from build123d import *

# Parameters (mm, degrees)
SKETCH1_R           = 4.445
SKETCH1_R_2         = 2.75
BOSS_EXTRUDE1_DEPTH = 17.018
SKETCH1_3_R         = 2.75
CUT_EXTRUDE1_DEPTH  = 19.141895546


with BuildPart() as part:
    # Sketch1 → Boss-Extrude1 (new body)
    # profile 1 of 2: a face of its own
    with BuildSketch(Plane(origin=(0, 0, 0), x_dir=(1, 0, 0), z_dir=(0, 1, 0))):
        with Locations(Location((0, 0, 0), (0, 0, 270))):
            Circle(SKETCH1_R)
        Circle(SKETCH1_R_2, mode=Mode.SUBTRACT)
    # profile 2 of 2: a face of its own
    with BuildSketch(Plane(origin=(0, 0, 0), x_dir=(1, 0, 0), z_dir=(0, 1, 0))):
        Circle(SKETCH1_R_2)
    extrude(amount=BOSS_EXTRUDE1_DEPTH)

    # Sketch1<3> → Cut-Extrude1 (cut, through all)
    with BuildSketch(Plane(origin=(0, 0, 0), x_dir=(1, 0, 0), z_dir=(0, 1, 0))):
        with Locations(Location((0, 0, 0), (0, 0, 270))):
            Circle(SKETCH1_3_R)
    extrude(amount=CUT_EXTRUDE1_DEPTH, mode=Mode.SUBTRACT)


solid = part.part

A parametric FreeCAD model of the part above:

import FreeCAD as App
import Part
import Sketcher
from FreeCAD import Vector
Q = App.Units.Quantity

doc = App.newDocument("Part")
body = doc.addObject("PartDesign::Body", "Body")

# Sketch on XZ plane
sketch1 = body.newObject("Sketcher::SketchObject", "Sketch")
sketch1.AttachmentSupport = (doc.getObject("XZ_Plane"), [""])
sketch1.MapMode = "FlatFace"
sketch1.addGeometry(Part.Circle(Vector(0, 0, 0), Vector(0, 0, 1), 4.4), False)
sketch1.addConstraint([
    Sketcher.Constraint("Coincident", 0, 3, -1, 1),
    Sketcher.Constraint("Diameter", 0, Q("0.35 in")),
])
pad1 = body.newObject("PartDesign::Pad", "Pad")
pad1.Profile = sketch1
pad1.Length = Q("0.67 in")
pad1.Reversed = True

# Sketch on XZ plane
sketch2 = body.newObject("Sketcher::SketchObject", "Sketch001")
sketch2.AttachmentSupport = (doc.getObject("XZ_Plane"), [""])
sketch2.MapMode = "FlatFace"
sketch2.addGeometry(Part.Circle(Vector(0, 0, 0), Vector(0, 0, 1), 2.8), False)
sketch2.addConstraint([
    Sketcher.Constraint("Coincident", 0, 3, -1, 1),
    Sketcher.Constraint("Diameter", 0, Q("5.5 mm")),
])
pocket1 = body.newObject("PartDesign::Pocket", "Pocket")
pocket1.Profile = sketch2
pocket1.Type = "ThroughAll"

doc.recompute()
